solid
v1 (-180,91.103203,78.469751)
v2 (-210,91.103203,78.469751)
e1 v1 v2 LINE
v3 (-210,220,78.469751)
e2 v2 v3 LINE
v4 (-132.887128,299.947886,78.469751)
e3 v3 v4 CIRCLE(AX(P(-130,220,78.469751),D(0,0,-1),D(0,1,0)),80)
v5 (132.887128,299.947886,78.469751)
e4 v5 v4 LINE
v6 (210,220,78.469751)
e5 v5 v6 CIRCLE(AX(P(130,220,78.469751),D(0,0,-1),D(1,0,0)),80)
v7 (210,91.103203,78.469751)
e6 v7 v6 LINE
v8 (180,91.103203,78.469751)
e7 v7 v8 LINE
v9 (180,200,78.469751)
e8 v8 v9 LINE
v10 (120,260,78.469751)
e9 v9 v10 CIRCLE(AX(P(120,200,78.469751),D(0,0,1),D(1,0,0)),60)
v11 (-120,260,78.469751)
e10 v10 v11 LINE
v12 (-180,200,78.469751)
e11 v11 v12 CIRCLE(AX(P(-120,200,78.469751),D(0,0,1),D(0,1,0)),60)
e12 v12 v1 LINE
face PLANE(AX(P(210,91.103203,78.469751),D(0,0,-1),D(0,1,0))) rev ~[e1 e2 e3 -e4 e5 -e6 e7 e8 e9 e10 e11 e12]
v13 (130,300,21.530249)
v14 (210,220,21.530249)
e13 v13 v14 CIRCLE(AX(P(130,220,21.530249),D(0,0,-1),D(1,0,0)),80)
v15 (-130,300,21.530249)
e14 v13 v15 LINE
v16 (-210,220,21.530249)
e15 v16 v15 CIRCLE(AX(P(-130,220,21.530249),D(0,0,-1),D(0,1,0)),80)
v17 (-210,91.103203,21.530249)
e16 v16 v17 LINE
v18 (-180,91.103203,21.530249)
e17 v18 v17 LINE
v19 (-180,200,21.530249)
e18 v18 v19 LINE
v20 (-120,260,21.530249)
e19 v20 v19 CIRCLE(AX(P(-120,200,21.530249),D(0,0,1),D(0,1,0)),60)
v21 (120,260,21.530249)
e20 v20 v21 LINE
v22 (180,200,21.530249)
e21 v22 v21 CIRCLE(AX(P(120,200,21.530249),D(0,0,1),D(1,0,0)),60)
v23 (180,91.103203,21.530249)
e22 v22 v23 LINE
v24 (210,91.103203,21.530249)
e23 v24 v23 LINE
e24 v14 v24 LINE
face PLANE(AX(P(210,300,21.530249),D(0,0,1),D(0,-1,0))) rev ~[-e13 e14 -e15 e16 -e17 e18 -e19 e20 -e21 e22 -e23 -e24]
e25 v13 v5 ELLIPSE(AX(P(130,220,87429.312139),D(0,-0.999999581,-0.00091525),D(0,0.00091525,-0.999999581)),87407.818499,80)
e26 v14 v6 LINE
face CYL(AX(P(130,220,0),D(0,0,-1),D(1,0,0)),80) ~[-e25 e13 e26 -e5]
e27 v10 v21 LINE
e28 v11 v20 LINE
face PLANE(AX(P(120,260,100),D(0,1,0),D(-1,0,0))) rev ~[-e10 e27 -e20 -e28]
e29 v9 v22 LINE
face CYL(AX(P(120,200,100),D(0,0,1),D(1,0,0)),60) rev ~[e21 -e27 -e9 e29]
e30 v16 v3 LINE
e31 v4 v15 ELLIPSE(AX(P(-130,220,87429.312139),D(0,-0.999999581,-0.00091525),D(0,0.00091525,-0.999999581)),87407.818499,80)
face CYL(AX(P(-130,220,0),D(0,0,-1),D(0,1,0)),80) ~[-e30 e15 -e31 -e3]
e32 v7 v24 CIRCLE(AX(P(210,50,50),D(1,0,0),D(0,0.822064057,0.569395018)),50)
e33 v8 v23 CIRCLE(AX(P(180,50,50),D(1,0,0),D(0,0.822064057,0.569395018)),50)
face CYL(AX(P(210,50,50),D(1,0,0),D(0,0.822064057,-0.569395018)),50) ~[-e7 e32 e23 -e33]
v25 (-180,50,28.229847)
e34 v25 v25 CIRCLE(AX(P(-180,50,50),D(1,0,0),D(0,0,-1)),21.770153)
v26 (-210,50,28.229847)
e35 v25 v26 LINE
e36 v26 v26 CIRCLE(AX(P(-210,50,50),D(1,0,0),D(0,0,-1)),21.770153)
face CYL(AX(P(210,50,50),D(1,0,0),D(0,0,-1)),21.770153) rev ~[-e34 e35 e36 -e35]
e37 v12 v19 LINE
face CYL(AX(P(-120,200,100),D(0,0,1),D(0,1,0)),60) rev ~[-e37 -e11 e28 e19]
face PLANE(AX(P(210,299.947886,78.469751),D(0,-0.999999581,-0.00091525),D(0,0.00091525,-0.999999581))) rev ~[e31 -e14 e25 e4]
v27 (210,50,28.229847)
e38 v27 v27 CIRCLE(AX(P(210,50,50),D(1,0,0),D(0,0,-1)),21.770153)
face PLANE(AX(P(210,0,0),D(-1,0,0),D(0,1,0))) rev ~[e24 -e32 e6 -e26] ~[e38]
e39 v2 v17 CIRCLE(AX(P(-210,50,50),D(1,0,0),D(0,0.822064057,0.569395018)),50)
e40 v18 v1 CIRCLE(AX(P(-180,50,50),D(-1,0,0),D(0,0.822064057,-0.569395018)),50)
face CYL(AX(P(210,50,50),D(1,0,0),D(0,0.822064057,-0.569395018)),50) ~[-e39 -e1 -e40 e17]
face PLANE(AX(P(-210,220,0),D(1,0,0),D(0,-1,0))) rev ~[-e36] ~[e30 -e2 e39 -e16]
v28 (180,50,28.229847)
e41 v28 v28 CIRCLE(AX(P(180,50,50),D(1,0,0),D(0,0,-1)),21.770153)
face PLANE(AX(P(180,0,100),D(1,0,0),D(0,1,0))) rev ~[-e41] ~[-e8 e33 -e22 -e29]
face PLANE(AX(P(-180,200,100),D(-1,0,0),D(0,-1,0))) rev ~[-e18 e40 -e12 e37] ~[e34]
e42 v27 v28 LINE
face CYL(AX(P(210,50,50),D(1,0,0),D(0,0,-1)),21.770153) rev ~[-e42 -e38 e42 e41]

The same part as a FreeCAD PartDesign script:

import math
import FreeCAD as App
import Part
import Sketcher
Q = App.Units.Quantity

doc = App.newDocument("Part")
body = doc.addObject("PartDesign::Body", "Body")

# Sketch on XY plane
sketch1 = body.newObject("Sketcher::SketchObject", "Sketch")
sketch1.AttachmentSupport = (doc.getObject("XY_Plane"), [""])
sketch1.MapMode = "FlatFace"
sketch1.addGeometry([
    Part.LineSegment(App.Vector(-210, 0, 0), App.Vector(210, 0, 0)),  # 0
    Part.LineSegment(App.Vector(210, 0, 0), App.Vector(210, 220, 0)),  # 1
    Part.ArcOfCircle(Part.Circle(App.Vector(130, 220, 0), App.Vector(0, 0, 1), 80), math.radians(0), math.radians(90)),  # 2
    Part.LineSegment(App.Vector(130, 300, 0), App.Vector(-130, 300, 0)),  # 3
    Part.ArcOfCircle(Part.Circle(App.Vector(-130, 220, 0), App.Vector(0, 0, 1), 80), math.radians(90), math.radians(180)),  # 4
    Part.LineSegment(App.Vector(-210, 220, 0), App.Vector(-210, 0, 0)),  # 5
], False)
sketch1.addConstraint([
    Sketcher.Constraint("Coincident", 0, 2, 1, 1),
    Sketcher.Constraint("Tangent", 1, 2, 2, 1),
    Sketcher.Constraint("Tangent", 2, 2, 3, 1),
    Sketcher.Constraint("Tangent", 3, 2, 4, 1),
    Sketcher.Constraint("Tangent", 4, 2, 5, 1),
    Sketcher.Constraint("Coincident", 5, 2, 0, 1),
    Sketcher.Constraint("Horizontal", 0),
    Sketcher.Constraint("Vertical", 1),
    Sketcher.Constraint("Horizontal", 3),
    Sketcher.Constraint("Vertical", 5),
    Sketcher.Constraint("Equal", 2, 4),
    Sketcher.Constraint("Symmetric", 0, 2, 5, 2, -1, 1),
    Sketcher.Constraint("Radius", 2, Q("80 mm")),
    Sketcher.Constraint("DistanceX", 0, 1, 0, 2, Q("420 mm")),
    Sketcher.Constraint("DistanceY", 1, 1, 1, 2, Q("220 mm")),
])
pad1 = body.newObject("PartDesign::Pad", "Pad")
pad1.Profile = sketch1
pad1.Length = 100

# Sketch on XY plane
sketch2 = body.newObject("Sketcher::SketchObject", "Sketch001")
sketch2.AttachmentSupport = (doc.getObject("XY_Plane"), [""])
sketch2.MapMode = "FlatFace"
sketch2.AttachmentOffset = App.Placement(App.Vector(0, 0, 100), App.Rotation())
sketch2.addGeometry([
    Part.LineSegment(App.Vector(-180, 0, 0), App.Vector(180, 0, 0)),  # 0
    Part.LineSegment(App.Vector(180, 0, 0), App.Vector(180, 200, 0)),  # 1
    Part.ArcOfCircle(Part.Circle(App.Vector(120, 200, 0), App.Vector(0, 0, 1), 60), math.radians(0), math.radians(90)),  # 2
    Part.LineSegment(App.Vector(120, 260, 0), App.Vector(-120, 260, 0)),  # 3
    Part.ArcOfCircle(Part.Circle(App.Vector(-120, 200, 0), App.Vector(0, 0, 1), 60), math.radians(90), math.radians(180)),  # 4
    Part.LineSegment(App.Vector(-180, 200, 0), App.Vector(-180, 0, 0)),  # 5
], False)
sketch2.addConstraint([
    Sketcher.Constraint("Coincident", 0, 2, 1, 1),
    Sketcher.Constraint("Tangent", 1, 2, 2, 1),
    Sketcher.Constraint("Tangent", 2, 2, 3, 1),
    Sketcher.Constraint("Tangent", 3, 2, 4, 1),
    Sketcher.Constraint("Tangent", 4, 2, 5, 1),
    Sketcher.Constraint("Coincident", 5, 2, 0, 1),
    Sketcher.Constraint("Horizontal", 0),
    Sketcher.Constraint("Vertical", 1),
    Sketcher.Constraint("Horizontal", 3),
    Sketcher.Constraint("Vertical", 5),
    Sketcher.Constraint("Equal", 2, 4),
    Sketcher.Constraint("Symmetric", 0, 2, 5, 2, -1, 1),
    Sketcher.Constraint("Radius", 2, Q("60 mm")),
    Sketcher.Constraint("DistanceX", 0, 1, 0, 2, Q("360 mm")),
    Sketcher.Constraint("DistanceY", 1, 1, 1, 2, Q("200 mm")),
])
pocket1 = body.newObject("PartDesign::Pocket", "Pocket")
pocket1.Profile = sketch2
pocket1.Type = "ThroughAll"

# Sketch on YZ plane
sketch3 = body.newObject("Sketcher::SketchObject", "Sketch002")
sketch3.AttachmentSupport = (doc.getObject("YZ_Plane"), [""])
sketch3.MapMode = "FlatFace"
sketch3.AttachmentOffset = App.Placement(App.Vector(0, 0, 210), App.Rotation())
sketch3.addGeometry([
    Part.LineSegment(App.Vector(353.574, 153.574, 0), App.Vector(-53.574, 153.574, 0)),  # 0
    Part.LineSegment(App.Vector(-53.574, 153.574, 0), App.Vector(-53.574, -53.574, 0)),  # 1
    Part.LineSegment(App.Vector(-53.574, -53.574, 0), App.Vector(353.574, -53.574, 0)),  # 2
    Part.LineSegment(App.Vector(353.574, -53.574, 0), App.Vector(353.574, 153.574, 0)),  # 3
    Part.LineSegment(App.Vector(91.103203, 78.469751, 0), App.Vector(299.947886, 78.469751, 0)),  # 4
    Part.LineSegment(App.Vector(299.947886, 78.469751, 0), App.Vector(300, 21.530249, 0)),  # 5
    Part.LineSegment(App.Vector(300, 21.530249, 0), App.Vector(91.103203, 21.530249, 0)),  # 6
    Part.ArcOfCircle(Part.Circle(App.Vector(50, 50, 0), App.Vector(0, 0, 1), 50), math.radians(34.708049), math.radians(325.291951)),  # 7
    Part.Circle(App.Vector(50, 50, 0), App.Vector(0, 0, 1), 21.770153),  # 8
], False)
sketch3.addConstraint([
    Sketcher.Constraint("Coincident", 0, 2, 1, 1),
    Sketcher.Constraint("Coincident", 1, 2, 2, 1),
    Sketcher.Constraint("Coincident", 2, 2, 3, 1),
    Sketcher.Constraint("Coincident", 3, 2, 0, 1),
    Sketcher.Constraint("Coincident", 4, 2, 5, 1),
    Sketcher.Constraint("Coincident", 5, 2, 6, 1),
    Sketcher.Constraint("Coincident", 6, 2, 7, 2),
    Sketcher.Constraint("Coincident", 7, 1, 4, 1),
    Sketcher.Constraint("Horizontal", 0),
    Sketcher.Constraint("Vertical", 1),
    Sketcher.Constraint("Horizontal", 2),
    Sketcher.Constraint("Vertical", 3),
    Sketcher.Constraint("Horizontal", 4),
    Sketcher.Constraint("Horizontal", 6),
    Sketcher.Constraint("Coincident", 8, 3, 7, 3),
    Sketcher.Constraint("Vertical", 6, 2, 7, 1),
    Sketcher.Constraint("Radius", 7, Q("50 mm")),
    Sketcher.Constraint("DistanceX", -1, 1, 7, 3, Q("50 mm")),
    Sketcher.Constraint("DistanceY", -1, 1, 7, 3, Q("50 mm")),
    Sketcher.Constraint("DistanceX", -1, 1, 5, 2, Q("300 mm")),
    Sketcher.Constraint("DistanceX", 0, 2, 0, 1, Q("407.148 mm")),
    Sketcher.Constraint("DistanceY", 1, 2, 1, 1, Q("207.148 mm")),
    Sketcher.Constraint("Diameter", 8, Q("43.540306 mm")),
    Sketcher.Constraint("DistanceX", 0, 2, -1, 1, Q("53.574 mm")),
    Sketcher.Constraint("DistanceY", -1, 1, 0, 2, Q("153.574 mm")),
    Sketcher.Constraint("DistanceY", 5, 2, 4, 2, Q("56.939502 mm")),
    Sketcher.Constraint("DistanceX", 4, 1, 4, 2, Q("208.844683 mm")),
])
pocket2 = body.newObject("PartDesign::Pocket", "Pocket001")
pocket2.Profile = sketch3
pocket2.Type = "ThroughAll"

doc.recompute()
